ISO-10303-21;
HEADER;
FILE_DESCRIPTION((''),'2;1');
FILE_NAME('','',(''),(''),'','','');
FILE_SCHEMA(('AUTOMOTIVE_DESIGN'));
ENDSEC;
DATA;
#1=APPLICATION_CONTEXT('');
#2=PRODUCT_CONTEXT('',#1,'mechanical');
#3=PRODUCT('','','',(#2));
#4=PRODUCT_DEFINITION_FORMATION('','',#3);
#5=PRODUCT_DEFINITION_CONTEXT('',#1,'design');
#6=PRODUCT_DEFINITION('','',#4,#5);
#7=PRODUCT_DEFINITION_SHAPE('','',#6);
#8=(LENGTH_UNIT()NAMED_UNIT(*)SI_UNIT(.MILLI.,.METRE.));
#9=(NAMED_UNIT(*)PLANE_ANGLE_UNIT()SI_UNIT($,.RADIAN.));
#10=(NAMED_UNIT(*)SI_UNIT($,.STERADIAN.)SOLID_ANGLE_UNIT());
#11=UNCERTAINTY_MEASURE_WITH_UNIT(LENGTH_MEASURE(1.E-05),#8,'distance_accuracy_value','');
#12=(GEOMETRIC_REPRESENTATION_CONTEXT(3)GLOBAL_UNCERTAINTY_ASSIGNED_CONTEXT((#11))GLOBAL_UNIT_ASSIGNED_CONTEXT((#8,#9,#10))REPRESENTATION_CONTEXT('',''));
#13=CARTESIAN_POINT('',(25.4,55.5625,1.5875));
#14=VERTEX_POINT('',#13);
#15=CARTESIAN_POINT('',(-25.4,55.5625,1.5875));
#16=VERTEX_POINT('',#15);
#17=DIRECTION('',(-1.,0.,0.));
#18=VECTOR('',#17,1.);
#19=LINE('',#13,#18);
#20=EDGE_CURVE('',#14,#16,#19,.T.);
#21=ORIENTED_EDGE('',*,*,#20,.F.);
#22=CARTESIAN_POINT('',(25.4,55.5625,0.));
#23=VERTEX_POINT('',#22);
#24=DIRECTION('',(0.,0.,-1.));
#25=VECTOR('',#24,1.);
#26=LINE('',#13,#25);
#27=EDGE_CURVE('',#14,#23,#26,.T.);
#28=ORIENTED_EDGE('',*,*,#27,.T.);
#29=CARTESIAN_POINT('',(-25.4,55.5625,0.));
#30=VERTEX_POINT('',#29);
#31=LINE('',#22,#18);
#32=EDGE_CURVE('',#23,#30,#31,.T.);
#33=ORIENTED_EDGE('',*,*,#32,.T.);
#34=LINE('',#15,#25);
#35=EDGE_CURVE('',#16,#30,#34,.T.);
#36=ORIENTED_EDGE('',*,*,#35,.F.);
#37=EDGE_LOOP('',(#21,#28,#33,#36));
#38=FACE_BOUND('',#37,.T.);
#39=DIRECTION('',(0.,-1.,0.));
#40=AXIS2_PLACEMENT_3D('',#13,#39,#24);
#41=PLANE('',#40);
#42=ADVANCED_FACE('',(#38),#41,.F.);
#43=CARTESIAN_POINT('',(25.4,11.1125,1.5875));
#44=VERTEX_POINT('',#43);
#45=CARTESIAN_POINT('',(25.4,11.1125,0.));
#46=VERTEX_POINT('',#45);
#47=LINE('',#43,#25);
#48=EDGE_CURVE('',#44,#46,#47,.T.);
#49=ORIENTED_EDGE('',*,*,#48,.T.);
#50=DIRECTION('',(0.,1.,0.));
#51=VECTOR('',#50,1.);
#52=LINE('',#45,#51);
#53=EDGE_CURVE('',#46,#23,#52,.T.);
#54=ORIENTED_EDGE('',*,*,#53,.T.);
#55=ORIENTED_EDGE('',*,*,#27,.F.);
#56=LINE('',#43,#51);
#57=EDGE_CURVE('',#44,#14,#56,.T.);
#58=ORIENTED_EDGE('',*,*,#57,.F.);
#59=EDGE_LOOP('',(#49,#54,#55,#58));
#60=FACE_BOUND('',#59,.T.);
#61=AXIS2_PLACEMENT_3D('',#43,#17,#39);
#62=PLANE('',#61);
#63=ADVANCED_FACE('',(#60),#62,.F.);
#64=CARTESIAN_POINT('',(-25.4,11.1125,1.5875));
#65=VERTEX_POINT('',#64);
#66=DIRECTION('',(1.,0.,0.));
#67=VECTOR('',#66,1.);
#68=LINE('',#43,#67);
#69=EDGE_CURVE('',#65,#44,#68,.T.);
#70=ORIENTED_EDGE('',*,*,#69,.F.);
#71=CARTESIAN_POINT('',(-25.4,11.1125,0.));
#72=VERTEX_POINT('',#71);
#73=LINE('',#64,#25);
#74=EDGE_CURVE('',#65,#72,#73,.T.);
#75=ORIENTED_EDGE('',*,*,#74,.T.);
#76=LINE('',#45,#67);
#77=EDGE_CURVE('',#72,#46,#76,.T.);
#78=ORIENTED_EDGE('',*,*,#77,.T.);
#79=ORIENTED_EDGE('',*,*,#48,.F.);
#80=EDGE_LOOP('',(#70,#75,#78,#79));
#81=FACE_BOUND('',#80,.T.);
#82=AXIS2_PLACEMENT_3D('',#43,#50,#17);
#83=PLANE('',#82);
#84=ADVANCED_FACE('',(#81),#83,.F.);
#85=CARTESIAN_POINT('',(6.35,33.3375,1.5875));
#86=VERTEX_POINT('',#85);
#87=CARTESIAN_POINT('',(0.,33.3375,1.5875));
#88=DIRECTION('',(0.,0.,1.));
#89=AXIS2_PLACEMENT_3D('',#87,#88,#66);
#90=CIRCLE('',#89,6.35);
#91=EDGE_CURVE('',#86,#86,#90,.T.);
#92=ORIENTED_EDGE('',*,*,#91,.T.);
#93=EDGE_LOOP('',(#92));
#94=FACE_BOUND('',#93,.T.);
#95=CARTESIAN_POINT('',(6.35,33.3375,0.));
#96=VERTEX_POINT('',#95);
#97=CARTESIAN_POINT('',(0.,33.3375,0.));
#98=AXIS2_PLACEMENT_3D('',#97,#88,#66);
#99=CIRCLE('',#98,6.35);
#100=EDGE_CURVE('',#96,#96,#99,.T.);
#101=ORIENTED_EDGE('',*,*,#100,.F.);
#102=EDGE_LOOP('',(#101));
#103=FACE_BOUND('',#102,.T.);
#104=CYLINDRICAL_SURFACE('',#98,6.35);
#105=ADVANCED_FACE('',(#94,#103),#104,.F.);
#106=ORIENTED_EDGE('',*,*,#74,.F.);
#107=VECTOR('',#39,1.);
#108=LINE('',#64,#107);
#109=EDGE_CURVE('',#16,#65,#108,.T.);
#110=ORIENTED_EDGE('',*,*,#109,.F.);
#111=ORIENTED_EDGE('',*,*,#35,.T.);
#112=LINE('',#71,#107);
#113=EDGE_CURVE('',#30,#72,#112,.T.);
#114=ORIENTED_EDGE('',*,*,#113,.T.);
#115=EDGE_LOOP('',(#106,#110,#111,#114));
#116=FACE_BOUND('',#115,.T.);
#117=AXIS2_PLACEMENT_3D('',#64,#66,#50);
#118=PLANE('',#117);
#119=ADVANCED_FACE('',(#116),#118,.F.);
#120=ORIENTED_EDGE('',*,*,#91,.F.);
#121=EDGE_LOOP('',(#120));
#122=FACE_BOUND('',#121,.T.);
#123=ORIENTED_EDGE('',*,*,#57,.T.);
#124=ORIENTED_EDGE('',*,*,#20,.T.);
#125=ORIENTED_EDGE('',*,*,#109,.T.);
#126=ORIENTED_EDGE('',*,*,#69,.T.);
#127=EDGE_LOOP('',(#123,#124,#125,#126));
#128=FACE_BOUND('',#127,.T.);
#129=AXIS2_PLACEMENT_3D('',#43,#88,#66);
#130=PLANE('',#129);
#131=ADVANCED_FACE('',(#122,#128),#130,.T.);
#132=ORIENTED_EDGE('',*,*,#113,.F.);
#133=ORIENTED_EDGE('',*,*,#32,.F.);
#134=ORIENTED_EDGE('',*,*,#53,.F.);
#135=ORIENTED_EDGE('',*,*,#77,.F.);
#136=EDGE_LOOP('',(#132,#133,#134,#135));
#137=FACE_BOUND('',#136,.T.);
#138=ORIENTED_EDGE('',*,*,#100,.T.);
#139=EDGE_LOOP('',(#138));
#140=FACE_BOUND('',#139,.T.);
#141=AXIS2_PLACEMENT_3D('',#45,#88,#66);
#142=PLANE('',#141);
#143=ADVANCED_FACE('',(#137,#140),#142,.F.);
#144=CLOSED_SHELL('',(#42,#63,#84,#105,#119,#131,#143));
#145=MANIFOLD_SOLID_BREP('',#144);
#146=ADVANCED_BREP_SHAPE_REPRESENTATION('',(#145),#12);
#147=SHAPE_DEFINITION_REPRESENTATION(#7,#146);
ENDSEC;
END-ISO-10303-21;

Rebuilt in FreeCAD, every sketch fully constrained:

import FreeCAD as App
import Part
import Sketcher
from FreeCAD import Vector
Q = App.Units.Quantity


def add_polygon(sketch, points):
    """Adds a closed chain of lines whose ends are joined by coincident constraints."""
    first, n = sketch.GeometryCount, len(points)
    for a, b in zip(points, points[1:] + points[:1]):
        sketch.addGeometry(Part.LineSegment(App.Vector(*a, 0), App.Vector(*b, 0)), False)
    for i in range(n):
        sketch.addConstraint(Sketcher.Constraint("Coincident", first + i, 2, first + (i + 1) % n, 1))

doc = App.newDocument("Part")
body = doc.addObject("PartDesign::Body", "Body")

sketch1 = body.newObject("Sketcher::SketchObject", "Sketch")
sketch1.AttachmentSupport = (doc.getObject("XY_Plane"), [""])
sketch1.MapMode = "FlatFace"
add_polygon(sketch1, [(-25, 56), (-25, 11), (25, 11), (25, 56)])
sketch1.addConstraint([
    Sketcher.Constraint("Vertical", 0),
    Sketcher.Constraint("Horizontal", 1),
    Sketcher.Constraint("Vertical", 2),
    Sketcher.Constraint("Horizontal", 3),
    Sketcher.Constraint("DistanceX", 1, 1, 1, 2, Q("2 in")),
    Sketcher.Constraint("DistanceX", 0, 2, -1, 1, Q("1 in")),
    Sketcher.Constraint("DistanceY", 0, 2, 0, 1, Q("1.75 in")),
    Sketcher.Constraint("DistanceY", -1, 1, 0, 2, Q("0.4375 in")),
])
pad1 = body.newObject("PartDesign::Pad", "Pad")
pad1.Profile = sketch1
pad1.Length = Q("0.0625 in")

sketch2 = body.newObject("Sketcher::SketchObject", "Sketch001")
sketch2.AttachmentSupport = (doc.getObject("XY_Plane"), [""])
sketch2.MapMode = "FlatFace"
sketch2.AttachmentOffset = App.Placement(Vector(0, 0, 0.0625 * 25.4), App.Rotation())
sketch2.addGeometry(Part.Circle(Vector(0, 33, 0), Vector(0, 0, 1), 6), False)
sketch2.addConstraint([
    Sketcher.Constraint("PointOnObject", 0, 3, -2),
    Sketcher.Constraint("Diameter", 0, Q("0.5 in")),
    Sketcher.Constraint("DistanceY", -1, 1, 0, 3, Q("1.3125 in")),
])
pocket1 = body.newObject("PartDesign::Pocket", "Pocket")
pocket1.Profile = sketch2
pocket1.Type = "ThroughAll"

doc.recompute()
